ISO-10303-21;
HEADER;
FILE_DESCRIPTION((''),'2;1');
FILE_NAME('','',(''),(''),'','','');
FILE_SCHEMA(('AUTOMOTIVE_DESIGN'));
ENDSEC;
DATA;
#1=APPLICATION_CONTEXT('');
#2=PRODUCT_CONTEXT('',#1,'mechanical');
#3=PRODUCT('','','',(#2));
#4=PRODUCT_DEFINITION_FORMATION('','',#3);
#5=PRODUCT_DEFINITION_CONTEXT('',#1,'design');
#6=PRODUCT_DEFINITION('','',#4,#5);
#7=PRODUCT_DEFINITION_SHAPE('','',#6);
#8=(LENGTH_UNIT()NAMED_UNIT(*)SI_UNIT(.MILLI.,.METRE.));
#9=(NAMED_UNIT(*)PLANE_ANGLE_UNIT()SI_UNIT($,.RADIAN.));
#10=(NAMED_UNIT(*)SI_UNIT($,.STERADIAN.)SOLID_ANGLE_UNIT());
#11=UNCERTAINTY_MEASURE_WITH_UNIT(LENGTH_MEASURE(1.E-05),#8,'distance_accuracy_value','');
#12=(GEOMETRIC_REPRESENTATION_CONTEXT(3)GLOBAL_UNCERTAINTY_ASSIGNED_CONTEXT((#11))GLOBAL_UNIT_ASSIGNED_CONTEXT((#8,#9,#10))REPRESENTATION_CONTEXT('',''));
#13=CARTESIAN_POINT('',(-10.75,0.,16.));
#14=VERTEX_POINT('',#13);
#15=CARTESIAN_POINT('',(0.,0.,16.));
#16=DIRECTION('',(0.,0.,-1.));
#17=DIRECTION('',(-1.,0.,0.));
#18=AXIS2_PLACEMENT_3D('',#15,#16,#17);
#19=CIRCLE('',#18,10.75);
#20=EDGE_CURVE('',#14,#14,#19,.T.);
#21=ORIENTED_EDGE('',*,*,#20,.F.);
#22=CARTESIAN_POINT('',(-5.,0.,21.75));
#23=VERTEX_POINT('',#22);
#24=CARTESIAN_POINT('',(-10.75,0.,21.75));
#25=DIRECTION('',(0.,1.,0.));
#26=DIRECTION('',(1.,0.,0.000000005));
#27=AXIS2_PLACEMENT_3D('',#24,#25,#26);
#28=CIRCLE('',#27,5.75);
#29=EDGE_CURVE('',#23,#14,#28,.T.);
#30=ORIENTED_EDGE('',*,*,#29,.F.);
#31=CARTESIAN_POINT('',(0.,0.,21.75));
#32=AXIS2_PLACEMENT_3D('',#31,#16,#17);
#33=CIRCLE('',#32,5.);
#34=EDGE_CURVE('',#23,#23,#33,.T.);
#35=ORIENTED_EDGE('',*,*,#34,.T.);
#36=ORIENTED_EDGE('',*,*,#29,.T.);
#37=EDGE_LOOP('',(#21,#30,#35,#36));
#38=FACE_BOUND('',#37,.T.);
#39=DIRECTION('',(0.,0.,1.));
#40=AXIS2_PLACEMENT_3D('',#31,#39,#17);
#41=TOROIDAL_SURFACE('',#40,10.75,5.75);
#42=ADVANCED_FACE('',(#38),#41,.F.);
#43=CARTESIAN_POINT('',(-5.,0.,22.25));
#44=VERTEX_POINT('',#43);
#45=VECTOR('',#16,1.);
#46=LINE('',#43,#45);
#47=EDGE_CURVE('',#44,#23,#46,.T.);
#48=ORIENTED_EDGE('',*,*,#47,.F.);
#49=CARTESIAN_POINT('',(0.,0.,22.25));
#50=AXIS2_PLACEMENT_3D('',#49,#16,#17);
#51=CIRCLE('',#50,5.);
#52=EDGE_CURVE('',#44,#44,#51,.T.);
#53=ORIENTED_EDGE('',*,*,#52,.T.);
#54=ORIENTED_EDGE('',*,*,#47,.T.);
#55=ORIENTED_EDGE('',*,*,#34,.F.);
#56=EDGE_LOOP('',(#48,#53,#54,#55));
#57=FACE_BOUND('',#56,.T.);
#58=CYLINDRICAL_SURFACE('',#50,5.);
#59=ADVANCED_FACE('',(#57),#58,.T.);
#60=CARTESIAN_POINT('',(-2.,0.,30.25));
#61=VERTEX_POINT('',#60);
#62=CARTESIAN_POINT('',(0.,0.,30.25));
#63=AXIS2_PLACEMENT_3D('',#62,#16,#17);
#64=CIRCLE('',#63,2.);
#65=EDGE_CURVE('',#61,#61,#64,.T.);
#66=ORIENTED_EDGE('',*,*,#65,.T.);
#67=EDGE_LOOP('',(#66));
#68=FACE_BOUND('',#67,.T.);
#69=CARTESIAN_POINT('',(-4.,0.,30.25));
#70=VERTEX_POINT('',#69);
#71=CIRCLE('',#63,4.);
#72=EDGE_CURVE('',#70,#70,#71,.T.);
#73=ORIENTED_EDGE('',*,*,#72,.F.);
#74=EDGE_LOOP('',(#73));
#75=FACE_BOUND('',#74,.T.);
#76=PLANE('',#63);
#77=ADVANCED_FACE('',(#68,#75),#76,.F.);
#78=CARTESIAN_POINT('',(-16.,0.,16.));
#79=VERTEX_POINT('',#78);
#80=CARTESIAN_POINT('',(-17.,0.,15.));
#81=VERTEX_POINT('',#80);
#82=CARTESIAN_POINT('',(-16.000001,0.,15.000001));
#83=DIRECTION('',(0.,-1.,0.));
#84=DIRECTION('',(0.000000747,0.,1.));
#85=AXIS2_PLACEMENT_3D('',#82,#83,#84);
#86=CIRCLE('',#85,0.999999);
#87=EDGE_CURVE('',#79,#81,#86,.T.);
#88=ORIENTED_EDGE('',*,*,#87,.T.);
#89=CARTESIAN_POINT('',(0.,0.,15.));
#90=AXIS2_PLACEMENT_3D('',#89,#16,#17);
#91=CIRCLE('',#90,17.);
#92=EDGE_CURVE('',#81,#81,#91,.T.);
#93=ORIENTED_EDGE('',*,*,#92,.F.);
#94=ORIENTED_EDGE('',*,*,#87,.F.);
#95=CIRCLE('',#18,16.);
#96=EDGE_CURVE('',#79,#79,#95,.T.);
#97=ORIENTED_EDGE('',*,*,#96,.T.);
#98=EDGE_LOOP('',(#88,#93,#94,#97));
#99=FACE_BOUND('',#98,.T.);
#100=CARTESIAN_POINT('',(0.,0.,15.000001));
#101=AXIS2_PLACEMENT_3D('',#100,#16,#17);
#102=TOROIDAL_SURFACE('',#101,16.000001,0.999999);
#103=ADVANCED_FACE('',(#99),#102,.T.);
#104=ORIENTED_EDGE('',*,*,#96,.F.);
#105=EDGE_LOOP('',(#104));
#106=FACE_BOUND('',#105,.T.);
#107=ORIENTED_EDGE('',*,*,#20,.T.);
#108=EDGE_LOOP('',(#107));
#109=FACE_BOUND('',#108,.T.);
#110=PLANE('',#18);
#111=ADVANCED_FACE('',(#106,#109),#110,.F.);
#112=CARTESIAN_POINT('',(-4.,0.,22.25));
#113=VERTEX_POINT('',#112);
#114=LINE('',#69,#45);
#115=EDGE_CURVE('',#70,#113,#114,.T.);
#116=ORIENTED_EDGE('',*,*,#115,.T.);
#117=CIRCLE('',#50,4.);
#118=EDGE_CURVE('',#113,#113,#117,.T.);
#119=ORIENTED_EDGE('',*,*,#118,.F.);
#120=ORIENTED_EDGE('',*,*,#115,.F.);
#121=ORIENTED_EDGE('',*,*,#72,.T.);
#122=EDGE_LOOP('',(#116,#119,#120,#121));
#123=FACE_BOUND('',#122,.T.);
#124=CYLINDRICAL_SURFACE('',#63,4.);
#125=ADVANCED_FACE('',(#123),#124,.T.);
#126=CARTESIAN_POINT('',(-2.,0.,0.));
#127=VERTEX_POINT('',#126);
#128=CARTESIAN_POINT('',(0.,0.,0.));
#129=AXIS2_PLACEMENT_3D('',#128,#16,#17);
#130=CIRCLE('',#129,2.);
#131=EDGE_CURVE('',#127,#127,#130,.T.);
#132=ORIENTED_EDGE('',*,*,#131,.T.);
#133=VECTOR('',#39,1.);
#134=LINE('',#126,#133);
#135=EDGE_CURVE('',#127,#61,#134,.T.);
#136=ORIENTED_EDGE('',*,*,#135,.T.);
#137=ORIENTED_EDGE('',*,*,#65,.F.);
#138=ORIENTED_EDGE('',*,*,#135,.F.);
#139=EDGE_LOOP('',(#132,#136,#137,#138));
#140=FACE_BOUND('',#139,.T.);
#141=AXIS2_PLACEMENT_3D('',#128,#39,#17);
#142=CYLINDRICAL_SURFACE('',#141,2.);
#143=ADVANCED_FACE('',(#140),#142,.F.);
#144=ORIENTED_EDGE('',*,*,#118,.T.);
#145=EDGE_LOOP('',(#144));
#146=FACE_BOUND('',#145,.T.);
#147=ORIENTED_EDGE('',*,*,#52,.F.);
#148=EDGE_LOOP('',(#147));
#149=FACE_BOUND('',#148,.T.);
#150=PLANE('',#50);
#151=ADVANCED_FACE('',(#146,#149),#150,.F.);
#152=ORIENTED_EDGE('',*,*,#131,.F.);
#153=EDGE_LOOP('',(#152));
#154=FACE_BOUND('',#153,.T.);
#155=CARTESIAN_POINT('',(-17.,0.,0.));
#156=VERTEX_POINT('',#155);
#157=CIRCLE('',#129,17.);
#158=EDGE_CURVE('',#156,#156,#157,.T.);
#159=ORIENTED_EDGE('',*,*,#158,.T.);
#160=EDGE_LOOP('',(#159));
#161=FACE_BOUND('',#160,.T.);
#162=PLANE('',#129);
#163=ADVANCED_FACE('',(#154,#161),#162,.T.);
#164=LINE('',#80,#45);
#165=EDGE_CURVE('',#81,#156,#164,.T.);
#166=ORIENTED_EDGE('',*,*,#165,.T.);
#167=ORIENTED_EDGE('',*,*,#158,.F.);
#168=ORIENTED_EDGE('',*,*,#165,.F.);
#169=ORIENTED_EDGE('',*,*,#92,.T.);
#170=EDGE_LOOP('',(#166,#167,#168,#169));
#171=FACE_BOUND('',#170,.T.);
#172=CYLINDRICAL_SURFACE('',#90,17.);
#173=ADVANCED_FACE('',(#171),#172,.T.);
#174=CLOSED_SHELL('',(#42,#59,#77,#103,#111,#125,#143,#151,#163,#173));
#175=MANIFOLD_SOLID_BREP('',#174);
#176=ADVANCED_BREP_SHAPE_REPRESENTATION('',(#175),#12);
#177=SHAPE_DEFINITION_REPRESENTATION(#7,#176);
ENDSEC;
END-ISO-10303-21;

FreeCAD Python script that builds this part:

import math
import FreeCAD as App
import Part
import Sketcher

V = App.Vector
Q = App.Units.Quantity

doc = App.newDocument("Part")
body = doc.addObject("PartDesign::Body", "Body")

sketch1 = doc.addObject("Sketcher::SketchObject", "Sketch")
body.addObject(sketch1)
sketch1.AttachmentSupport = (doc.XZ_Plane, [""])
sketch1.MapMode = "FlatFace"
sketch1.addGeometry([
    Part.LineSegment(V(-17, 15, 0), V(-17, 0, 0)),
    Part.LineSegment(V(-17, 0, 0), V(-2, 0, 0)),
    Part.LineSegment(V(-2, 0, 0), V(-2, 30.25, 0)),
    Part.LineSegment(V(-2, 30.25, 0), V(-4, 30.25, 0)),
    Part.LineSegment(V(-4, 30.25, 0), V(-4, 22.25, 0)),
    Part.LineSegment(V(-4, 22.25, 0), V(-5, 22.25, 0)),
    Part.LineSegment(V(-5, 22.25, 0), V(-5, 21.75, 0)),
    Part.ArcOfCircle(Part.Circle(V(-10.75, 21.75, 0), V(0, 0, 1), 5.75), math.radians(-90), math.radians(0)),
    Part.LineSegment(V(-10.75, 16, 0), V(-16, 16, 0)),
    Part.ArcOfCircle(Part.Circle(V(-16.000001, 15.000001, 0), V(0, 0, 1), 0.999999), math.radians(89.999957), math.radians(180.000043)),
], False)
sketch1.addConstraint([
    Sketcher.Constraint("Coincident", 0, 2, 1, 1),
    Sketcher.Constraint("Coincident", 1, 2, 2, 1),
    Sketcher.Constraint("Coincident", 2, 2, 3, 1),
    Sketcher.Constraint("Coincident", 3, 2, 4, 1),
    Sketcher.Constraint("Coincident", 4, 2, 5, 1),
    Sketcher.Constraint("Coincident", 5, 2, 6, 1),
    Sketcher.Constraint("Tangent", 6, 2, 7, 2),
    Sketcher.Constraint("Tangent", 7, 1, 8, 1),
    Sketcher.Constraint("Tangent", 8, 2, 9, 1),
    Sketcher.Constraint("Tangent", 9, 2, 0, 1),
    Sketcher.Constraint("Vertical", 0),
    Sketcher.Constraint("Horizontal", 1),
    Sketcher.Constraint("Vertical", 2),
    Sketcher.Constraint("Horizontal", 3),
    Sketcher.Constraint("Vertical", 4),
    Sketcher.Constraint("Horizontal", 5),
    Sketcher.Constraint("Vertical", 6),
    Sketcher.Constraint("Horizontal", 8),
    Sketcher.Constraint("PointOnObject", 0, 2, -1),
    Sketcher.Constraint("Equal", 1, 0),
    Sketcher.Constraint("Radius", 9, Q("0.999999 mm")),
    Sketcher.Constraint("DistanceX", 1, 1, 1, 2, Q("15 mm")),
    Sketcher.Constraint("DistanceX", 3, 2, 3, 1, Q("2 mm")),
    Sketcher.Constraint("DistanceX", 5, 2, 5, 1, Q("1 mm")),
    Sketcher.Constraint("DistanceY", 4, 2, 4, 1, Q("8 mm")),
    Sketcher.Constraint("Radius", 7, Q("5.75 mm")),
    Sketcher.Constraint("DistanceY", 6, 2, 6, 1, Q("0.5 mm")),
    Sketcher.Constraint("DistanceX", 9, 3, -1, 1, Q("16.000001 mm")),
])
revolution = doc.addObject("PartDesign::Revolution", "Revolution")
body.addObject(revolution)
revolution.Profile = sketch1
revolution.ReferenceAxis = (sketch1, ["V_Axis"])
revolution.Angle = 360

doc.recompute()
